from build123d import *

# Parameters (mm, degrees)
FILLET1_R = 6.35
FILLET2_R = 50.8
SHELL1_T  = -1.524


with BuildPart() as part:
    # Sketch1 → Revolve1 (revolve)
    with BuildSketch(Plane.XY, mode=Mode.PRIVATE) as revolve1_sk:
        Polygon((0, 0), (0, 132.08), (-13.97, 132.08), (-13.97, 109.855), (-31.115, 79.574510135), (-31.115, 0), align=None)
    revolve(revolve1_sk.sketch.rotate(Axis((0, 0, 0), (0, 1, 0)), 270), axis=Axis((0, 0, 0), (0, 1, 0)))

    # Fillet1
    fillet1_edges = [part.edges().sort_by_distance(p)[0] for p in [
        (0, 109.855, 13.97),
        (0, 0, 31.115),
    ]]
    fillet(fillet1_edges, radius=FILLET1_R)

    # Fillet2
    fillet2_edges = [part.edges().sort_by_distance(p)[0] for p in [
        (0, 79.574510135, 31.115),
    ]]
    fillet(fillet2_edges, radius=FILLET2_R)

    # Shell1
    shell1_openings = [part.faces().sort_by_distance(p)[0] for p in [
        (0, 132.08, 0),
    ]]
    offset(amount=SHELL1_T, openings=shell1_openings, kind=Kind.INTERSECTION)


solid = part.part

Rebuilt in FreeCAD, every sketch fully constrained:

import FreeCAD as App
import Part
import Sketcher
from FreeCAD import Vector
Q = App.Units.Quantity


def edges_at(feature, points):
    """Names of the edges that pass closest to the given points."""
    edges = feature.Shape.Edges
    near = lambda p: min(range(len(edges)), key=lambda i: edges[i].distToShape(Part.Vertex(*p))[0])
    return sorted({f"Edge{near(p) + 1}" for p in points})


def faces_at(feature, points):
    """Names of the faces that lie closest to the given points."""
    faces = feature.Shape.Faces
    near = lambda p: min(range(len(faces)), key=lambda i: faces[i].distToShape(Part.Vertex(*p))[0])
    return sorted({f"Face{near(p) + 1}" for p in points})


def add_polygon(sketch, points):
    """Adds a closed chain of lines whose ends are joined by coincident constraints."""
    first, n = sketch.GeometryCount, len(points)
    for a, b in zip(points, points[1:] + points[:1]):
        sketch.addGeometry(Part.LineSegment(App.Vector(*a, 0), App.Vector(*b, 0)), False)
    for i in range(n):
        sketch.addConstraint(Sketcher.Constraint("Coincident", first + i, 2, first + (i + 1) % n, 1))

doc = App.newDocument("Part")
body = doc.addObject("PartDesign::Body", "Body")

# Sketch on XY plane
sketch1 = doc.addObject("Sketcher::SketchObject", "Sketch")
body.addObject(sketch1)
sketch1.AttachmentSupport = (doc.XY_Plane, [""])
sketch1.MapMode = "FlatFace"
add_polygon(sketch1, [(0, 0), (0, 132), (-14, 132), (-14, 110), (-31, 80), (-31, 0)])  # lines 0-5
sketch1.addConstraint([
    Sketcher.Constraint("Vertical", 0),
    Sketcher.Constraint("Horizontal", 1),
    Sketcher.Constraint("Vertical", 2),
    Sketcher.Constraint("Vertical", 4),
    Sketcher.Constraint("Horizontal", 5),
    Sketcher.Constraint("Coincident", 5, 2, -1, 1),
    Sketcher.Constraint("DistanceY", 0, 1, 0, 2, Q("5.2 in")),
    Sketcher.Constraint("DistanceX", 1, 2, 1, 1, Q("0.55 in")),
    Sketcher.Constraint("DistanceX", 5, 1, 5, 2, Q("1.225 in")),
    Sketcher.Constraint("DistanceY", 2, 2, 2, 1, Q("0.875 in")),
    Sketcher.Constraint("Distance", 3, Q("34.797401 mm")),
])
revolution = doc.addObject("PartDesign::Revolution", "Revolution")
body.addObject(revolution)
revolution.Profile = sketch1
revolution.ReferenceAxis = (sketch1, ["V_Axis"])
revolution.Angle = 360
doc.recompute()

fillet = doc.addObject("PartDesign::Fillet", "Fillet")
body.addObject(fillet)
fillet.Base = (revolution, edges_at(revolution, [(0, 109.855, 13.97), (0, 0, 31.115)]))
fillet.Radius = Q("0.25 in")
doc.recompute()

fillet2 = doc.addObject("PartDesign::Fillet", "Fillet001")
body.addObject(fillet2)
fillet2.Base = (fillet, edges_at(fillet, [(0, 79.575, 31.115)]))
fillet2.Radius = Q("2 in")
doc.recompute()

thickness = doc.addObject("PartDesign::Thickness", "Thickness")
body.addObject(thickness)
thickness.Base = (fillet2, faces_at(fillet2, [(0, 132.08, 0)]))
thickness.Value = Q("0.06 in")
thickness.Reversed = True
thickness.Join = "Intersection"

doc.recompute()
